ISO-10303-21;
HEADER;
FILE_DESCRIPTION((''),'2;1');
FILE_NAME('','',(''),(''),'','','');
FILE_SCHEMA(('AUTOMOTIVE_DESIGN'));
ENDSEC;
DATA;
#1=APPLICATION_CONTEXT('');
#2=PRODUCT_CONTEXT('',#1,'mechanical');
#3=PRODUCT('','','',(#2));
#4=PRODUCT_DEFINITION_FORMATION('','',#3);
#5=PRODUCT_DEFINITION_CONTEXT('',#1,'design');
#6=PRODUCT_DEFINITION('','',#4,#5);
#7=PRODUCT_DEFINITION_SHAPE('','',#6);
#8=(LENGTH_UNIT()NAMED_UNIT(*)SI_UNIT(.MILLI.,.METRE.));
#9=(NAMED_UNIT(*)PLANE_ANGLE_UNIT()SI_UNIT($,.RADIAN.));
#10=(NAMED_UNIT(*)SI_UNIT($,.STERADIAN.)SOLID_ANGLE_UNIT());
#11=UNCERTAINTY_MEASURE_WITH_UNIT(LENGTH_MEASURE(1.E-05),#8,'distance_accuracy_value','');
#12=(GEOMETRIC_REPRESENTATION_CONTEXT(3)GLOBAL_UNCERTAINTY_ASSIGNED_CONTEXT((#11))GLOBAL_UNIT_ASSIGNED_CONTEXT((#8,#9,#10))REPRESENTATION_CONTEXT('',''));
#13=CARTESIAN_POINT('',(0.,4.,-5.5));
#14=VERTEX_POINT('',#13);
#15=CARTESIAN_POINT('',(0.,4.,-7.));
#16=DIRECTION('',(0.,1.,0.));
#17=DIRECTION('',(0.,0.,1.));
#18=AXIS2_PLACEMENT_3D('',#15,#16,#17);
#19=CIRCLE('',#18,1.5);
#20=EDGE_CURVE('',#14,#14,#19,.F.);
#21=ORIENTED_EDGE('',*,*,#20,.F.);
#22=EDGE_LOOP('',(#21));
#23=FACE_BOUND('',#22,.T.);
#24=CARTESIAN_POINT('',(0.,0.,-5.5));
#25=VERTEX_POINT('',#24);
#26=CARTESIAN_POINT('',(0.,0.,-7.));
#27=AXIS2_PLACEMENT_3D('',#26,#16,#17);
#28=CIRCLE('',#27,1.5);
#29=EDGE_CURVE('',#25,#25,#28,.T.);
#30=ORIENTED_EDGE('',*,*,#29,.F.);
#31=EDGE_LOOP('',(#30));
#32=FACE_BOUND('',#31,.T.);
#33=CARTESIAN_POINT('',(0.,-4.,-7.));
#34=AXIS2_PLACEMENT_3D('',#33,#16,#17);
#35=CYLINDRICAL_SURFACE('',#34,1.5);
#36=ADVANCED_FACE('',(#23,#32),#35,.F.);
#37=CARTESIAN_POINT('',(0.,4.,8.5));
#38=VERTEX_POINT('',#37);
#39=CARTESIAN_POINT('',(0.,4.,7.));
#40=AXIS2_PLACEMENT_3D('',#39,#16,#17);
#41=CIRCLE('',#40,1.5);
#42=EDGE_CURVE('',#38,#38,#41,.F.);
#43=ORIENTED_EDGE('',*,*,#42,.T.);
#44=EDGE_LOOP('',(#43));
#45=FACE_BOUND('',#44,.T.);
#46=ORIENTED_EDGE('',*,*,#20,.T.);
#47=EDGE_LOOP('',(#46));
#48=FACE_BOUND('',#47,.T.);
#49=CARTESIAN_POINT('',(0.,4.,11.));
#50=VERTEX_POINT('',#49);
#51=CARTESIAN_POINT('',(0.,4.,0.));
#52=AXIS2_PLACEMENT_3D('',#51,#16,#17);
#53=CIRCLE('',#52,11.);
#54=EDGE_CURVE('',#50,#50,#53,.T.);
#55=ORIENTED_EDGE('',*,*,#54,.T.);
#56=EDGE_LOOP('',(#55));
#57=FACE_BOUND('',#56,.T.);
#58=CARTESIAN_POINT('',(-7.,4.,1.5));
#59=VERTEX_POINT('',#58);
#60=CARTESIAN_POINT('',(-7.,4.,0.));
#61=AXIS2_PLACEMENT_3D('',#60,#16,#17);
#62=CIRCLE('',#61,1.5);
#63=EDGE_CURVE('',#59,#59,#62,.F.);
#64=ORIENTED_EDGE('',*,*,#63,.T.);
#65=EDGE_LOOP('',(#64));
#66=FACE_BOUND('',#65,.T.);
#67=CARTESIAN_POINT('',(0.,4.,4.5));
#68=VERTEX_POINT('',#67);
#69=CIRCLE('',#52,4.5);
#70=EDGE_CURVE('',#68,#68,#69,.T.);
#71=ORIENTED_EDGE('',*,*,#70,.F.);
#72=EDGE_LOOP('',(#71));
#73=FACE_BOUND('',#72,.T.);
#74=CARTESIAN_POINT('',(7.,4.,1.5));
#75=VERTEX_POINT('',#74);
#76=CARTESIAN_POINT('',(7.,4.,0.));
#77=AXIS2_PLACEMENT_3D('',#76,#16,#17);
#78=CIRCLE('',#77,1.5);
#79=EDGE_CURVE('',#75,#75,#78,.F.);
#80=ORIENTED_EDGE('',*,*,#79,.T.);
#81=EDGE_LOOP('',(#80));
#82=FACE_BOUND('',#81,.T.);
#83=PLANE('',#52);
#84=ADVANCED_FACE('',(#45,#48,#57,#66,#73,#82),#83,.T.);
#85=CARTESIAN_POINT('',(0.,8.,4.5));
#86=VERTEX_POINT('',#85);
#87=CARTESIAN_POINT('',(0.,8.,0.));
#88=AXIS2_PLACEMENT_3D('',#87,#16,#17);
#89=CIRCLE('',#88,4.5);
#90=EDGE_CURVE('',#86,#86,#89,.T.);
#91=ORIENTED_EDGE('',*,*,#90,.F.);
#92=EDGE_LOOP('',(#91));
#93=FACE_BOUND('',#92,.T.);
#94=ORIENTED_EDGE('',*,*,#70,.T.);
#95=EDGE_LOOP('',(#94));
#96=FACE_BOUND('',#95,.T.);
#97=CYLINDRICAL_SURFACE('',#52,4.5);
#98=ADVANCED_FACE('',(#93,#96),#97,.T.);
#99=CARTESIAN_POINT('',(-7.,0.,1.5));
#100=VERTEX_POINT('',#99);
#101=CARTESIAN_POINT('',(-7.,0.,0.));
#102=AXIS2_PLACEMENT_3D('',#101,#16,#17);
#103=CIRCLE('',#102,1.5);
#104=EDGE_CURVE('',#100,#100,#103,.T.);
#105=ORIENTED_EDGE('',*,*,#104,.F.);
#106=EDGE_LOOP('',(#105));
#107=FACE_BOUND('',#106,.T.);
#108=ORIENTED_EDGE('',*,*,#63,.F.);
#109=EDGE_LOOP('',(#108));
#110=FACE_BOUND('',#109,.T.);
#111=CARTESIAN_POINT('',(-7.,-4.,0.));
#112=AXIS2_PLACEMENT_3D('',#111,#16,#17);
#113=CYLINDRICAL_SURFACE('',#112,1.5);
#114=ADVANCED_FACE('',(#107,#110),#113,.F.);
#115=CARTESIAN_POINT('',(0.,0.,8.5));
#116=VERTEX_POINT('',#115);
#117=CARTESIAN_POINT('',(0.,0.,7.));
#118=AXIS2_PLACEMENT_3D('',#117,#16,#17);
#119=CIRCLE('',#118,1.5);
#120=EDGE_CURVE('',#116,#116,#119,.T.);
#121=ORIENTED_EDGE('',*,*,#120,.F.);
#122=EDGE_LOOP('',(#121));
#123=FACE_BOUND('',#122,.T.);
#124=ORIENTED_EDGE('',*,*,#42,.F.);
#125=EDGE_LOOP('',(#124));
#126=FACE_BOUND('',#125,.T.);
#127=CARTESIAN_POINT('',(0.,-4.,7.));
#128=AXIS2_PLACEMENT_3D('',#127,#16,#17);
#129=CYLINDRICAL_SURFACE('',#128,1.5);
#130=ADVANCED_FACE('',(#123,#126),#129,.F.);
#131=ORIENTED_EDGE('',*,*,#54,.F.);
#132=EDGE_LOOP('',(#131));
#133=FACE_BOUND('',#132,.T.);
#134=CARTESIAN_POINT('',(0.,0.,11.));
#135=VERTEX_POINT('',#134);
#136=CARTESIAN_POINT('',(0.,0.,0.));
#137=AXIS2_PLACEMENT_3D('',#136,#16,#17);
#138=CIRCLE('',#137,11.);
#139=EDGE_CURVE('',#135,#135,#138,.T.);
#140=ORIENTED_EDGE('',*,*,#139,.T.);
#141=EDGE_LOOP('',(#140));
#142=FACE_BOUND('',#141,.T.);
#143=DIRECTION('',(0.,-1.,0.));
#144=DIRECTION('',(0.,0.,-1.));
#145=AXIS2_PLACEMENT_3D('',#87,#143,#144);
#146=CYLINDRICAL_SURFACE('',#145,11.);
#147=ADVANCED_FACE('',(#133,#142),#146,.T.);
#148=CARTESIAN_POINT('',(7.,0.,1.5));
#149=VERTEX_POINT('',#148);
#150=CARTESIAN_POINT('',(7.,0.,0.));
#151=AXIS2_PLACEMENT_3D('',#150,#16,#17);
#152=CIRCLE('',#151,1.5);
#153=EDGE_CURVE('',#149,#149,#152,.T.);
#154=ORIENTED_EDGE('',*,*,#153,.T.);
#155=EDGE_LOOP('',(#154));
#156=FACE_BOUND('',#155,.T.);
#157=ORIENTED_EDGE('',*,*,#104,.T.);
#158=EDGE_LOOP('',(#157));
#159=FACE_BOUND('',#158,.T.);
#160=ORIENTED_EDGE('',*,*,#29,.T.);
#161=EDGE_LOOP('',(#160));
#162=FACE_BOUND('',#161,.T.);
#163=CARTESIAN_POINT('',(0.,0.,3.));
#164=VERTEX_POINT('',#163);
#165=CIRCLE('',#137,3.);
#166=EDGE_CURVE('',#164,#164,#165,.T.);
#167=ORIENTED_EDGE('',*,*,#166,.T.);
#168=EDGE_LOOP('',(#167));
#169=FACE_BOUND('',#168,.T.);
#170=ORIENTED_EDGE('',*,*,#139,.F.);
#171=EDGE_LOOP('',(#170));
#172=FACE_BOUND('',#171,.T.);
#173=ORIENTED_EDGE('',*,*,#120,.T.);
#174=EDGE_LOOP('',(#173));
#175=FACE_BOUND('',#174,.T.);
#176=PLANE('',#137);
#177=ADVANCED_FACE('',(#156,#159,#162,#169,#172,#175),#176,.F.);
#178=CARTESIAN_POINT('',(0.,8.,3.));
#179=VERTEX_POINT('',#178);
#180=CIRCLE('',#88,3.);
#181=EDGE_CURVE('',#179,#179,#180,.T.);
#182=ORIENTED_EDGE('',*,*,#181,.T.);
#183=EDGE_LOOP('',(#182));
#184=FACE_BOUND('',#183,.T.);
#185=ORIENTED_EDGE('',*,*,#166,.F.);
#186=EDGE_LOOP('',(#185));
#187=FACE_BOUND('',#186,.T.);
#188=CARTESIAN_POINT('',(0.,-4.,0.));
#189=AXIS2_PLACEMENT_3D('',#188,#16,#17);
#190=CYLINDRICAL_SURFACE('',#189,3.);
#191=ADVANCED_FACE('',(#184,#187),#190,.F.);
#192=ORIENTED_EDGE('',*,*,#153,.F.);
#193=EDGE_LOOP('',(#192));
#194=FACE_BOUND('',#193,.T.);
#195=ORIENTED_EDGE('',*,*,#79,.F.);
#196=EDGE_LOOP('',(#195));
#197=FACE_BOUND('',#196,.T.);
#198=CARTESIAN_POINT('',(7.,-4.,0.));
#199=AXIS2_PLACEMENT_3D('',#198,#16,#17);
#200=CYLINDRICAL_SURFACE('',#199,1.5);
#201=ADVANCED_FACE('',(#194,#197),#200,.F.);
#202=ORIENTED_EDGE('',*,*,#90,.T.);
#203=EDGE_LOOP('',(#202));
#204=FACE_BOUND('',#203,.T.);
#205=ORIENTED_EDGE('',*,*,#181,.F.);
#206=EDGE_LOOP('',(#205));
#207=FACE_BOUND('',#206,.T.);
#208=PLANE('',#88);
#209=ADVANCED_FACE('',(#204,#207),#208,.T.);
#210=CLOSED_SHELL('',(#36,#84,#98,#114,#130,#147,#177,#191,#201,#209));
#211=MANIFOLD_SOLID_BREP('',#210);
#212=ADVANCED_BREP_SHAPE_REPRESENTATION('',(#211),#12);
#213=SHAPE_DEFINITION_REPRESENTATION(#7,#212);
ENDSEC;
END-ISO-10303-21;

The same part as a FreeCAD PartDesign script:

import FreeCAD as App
import Part
import Sketcher
from FreeCAD import Vector
Q = App.Units.Quantity

doc = App.newDocument("Part")
params = doc.addObject("Spreadsheet::Sheet", "Params")
for row, (alias, value) in enumerate([
    ("sketch1_diameter", "22 mm"),
    ("pad1_length", "8 mm"),
    ("sketch2_diameter", "6 mm"),
    ("sketch2_diameter2", "3 mm"),
    ("pocket1_length", "12 mm"),
    ("sketch3_diameter", "22 mm"),
    ("sketch3_diameter2", "9 mm"),
    ("pocket2_length", "4 mm"),
], start=1):
    params.set(f"A{row}", alias)
    params.set(f"B{row}", "=" + value)
    params.setAlias(f"B{row}", alias)

body = doc.addObject("PartDesign::Body", "Body")

# Sketch on XZ plane
sketch1 = body.newObject("Sketcher::SketchObject", "Sketch")
sketch1.AttachmentSupport = (doc.getObject("XZ_Plane"), [""])
sketch1.MapMode = "FlatFace"
sketch1.addGeometry(Part.Circle(Vector(0, 0, 0), Vector(0, 0, 1), 11), False)
sketch1.addConstraint([
    Sketcher.Constraint("Coincident", 0, 3, -1, 1),
    Sketcher.Constraint("Diameter", 0, Q("22 mm")),
])
sketch1.setExpression("Constraints[1]", "Params.sketch1_diameter")
pad1 = body.newObject("PartDesign::Pad", "Pad")
pad1.Profile = sketch1
pad1.setExpression("Length", "Params.pad1_length")
pad1.Reversed = True

# Sketch on XZ plane
sketch2 = body.newObject("Sketcher::SketchObject", "Sketch001")
sketch2.AttachmentSupport = (doc.getObject("XZ_Plane"), [""])
sketch2.MapMode = "FlatFace"
sketch2.AttachmentOffset = App.Placement(Vector(0, 0, -8), App.Rotation())
sketch2.addGeometry([
    Part.Circle(Vector(0, 0, 0), Vector(0, 0, 1), 3),  # 0
    Part.Circle(Vector(-7, 0, 0), Vector(0, 0, 1), 1.5),  # 1
    Part.Circle(Vector(0, -7, 0), Vector(0, 0, 1), 1.5),  # 2
    Part.Circle(Vector(7, 0, 0), Vector(0, 0, 1), 1.5),  # 3
    Part.Circle(Vector(0, 7, 0), Vector(0, 0, 1), 1.5),  # 4
], False)
sketch2.addConstraint([
    Sketcher.Constraint("Coincident", 0, 3, -1, 1),
    Sketcher.Constraint("Equal", 1, 2),
    Sketcher.Constraint("Equal", 2, 3),
    Sketcher.Constraint("Equal", 3, 4),
    Sketcher.Constraint("Symmetric", 1, 3, 3, 3, -1, 1),
    Sketcher.Constraint("Symmetric", 2, 3, 4, 3, -1, 1),
    Sketcher.Constraint("PointOnObject", 1, 3, -1),
    Sketcher.Constraint("PointOnObject", 2, 3, -2),
    Sketcher.Constraint("Diameter", 0, Q("6 mm")),
    Sketcher.Constraint("Diameter", 1, Q("3 mm")),
    Sketcher.Constraint("DistanceX", 1, 3, -1, 1, Q("7 mm")),
    Sketcher.Constraint("DistanceY", 2, 3, -1, 1, Q("7 mm")),
])
sketch2.setExpression("Constraints[8]", "Params.sketch2_diameter")
sketch2.setExpression("Constraints[9]", "Params.sketch2_diameter2")
pocket1 = body.newObject("PartDesign::Pocket", "Pocket")
pocket1.Profile = sketch2
pocket1.setExpression("Length", "Params.pocket1_length")
pocket1.Reversed = True

# Sketch on XZ plane
sketch3 = body.newObject("Sketcher::SketchObject", "Sketch002")
sketch3.AttachmentSupport = (doc.getObject("XZ_Plane"), [""])
sketch3.MapMode = "FlatFace"
sketch3.AttachmentOffset = App.Placement(Vector(0, 0, -4), App.Rotation())
sketch3.addGeometry([
    Part.Circle(Vector(0, 0, 0), Vector(0, 0, 1), 11),
    Part.Circle(Vector(0, 0, 0), Vector(0, 0, 1), 4.5),
], False)
sketch3.addConstraint([
    Sketcher.Constraint("Coincident", 0, 3, -1, 1),
    Sketcher.Constraint("Coincident", 1, 3, -1, 1),
    Sketcher.Constraint("Diameter", 0, Q("22 mm")),
    Sketcher.Constraint("Diameter", 1, Q("9 mm")),
])
sketch3.setExpression("Constraints[2]", "Params.sketch3_diameter")
sketch3.setExpression("Constraints[3]", "Params.sketch3_diameter2")
pocket2 = body.newObject("PartDesign::Pocket", "Pocket001")
pocket2.Profile = sketch3
pocket2.setExpression("Length", "Params.pocket2_length")

doc.recompute()
